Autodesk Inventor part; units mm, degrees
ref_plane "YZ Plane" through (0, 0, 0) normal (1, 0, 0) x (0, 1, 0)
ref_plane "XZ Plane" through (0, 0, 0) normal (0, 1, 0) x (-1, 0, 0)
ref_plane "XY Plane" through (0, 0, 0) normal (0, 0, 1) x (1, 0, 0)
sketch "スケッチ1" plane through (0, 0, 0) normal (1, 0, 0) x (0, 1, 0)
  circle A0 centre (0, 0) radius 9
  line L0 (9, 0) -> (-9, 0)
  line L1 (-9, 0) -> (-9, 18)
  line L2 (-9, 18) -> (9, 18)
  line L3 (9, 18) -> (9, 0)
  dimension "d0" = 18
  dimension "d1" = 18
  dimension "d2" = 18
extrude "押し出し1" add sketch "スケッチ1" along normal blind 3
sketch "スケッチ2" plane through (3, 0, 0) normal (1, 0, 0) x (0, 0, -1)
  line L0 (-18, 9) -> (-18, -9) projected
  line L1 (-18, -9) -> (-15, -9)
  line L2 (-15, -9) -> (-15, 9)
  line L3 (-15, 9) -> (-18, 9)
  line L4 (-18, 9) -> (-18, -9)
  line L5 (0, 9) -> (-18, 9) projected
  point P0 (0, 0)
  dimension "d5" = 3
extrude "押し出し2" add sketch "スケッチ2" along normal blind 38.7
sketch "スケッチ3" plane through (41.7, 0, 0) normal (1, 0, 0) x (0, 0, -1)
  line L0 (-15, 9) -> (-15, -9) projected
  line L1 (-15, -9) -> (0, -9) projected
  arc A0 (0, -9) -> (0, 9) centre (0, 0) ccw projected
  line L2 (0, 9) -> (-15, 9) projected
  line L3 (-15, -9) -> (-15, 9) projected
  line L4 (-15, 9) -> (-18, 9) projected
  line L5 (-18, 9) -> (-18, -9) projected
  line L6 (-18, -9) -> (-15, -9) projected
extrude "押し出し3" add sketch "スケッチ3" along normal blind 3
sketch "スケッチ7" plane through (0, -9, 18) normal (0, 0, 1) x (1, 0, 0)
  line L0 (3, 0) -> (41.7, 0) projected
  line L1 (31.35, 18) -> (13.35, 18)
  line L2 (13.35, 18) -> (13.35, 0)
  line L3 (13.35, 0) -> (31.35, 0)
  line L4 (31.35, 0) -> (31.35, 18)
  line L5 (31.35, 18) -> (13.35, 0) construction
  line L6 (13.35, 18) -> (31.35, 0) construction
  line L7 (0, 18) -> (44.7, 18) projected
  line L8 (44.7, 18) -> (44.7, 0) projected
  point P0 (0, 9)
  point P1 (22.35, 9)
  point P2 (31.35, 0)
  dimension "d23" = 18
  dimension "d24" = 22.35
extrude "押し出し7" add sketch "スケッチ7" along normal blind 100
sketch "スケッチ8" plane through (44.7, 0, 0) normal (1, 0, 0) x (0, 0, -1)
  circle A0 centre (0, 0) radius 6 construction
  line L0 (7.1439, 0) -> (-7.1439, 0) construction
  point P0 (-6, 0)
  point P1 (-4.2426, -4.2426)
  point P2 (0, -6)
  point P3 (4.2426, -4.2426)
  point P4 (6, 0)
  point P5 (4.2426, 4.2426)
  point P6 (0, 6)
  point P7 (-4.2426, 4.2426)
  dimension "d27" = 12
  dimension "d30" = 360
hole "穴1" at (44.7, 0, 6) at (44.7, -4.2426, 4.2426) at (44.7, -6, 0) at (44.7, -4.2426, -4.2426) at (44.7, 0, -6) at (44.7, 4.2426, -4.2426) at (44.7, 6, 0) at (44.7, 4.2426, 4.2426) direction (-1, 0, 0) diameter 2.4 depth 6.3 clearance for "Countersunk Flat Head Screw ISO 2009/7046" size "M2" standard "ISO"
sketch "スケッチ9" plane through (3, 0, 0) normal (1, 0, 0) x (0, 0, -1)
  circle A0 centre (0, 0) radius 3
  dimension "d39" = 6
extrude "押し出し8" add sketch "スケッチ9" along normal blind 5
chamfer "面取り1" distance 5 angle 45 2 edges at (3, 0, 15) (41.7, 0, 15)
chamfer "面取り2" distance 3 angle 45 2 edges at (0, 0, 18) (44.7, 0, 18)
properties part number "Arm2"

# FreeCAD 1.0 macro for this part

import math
import FreeCAD as App
import Part
import Sketcher
from FreeCAD import Vector
Q = App.Units.Quantity


def edges_at(feature, points):
    """Names of the edges that pass closest to the given points."""
    edges = feature.Shape.Edges
    near = lambda p: min(range(len(edges)), key=lambda i: edges[i].distToShape(Part.Vertex(*p))[0])
    return sorted({f"Edge{near(p) + 1}" for p in points})

doc = App.newDocument("Part")
body = doc.addObject("PartDesign::Body", "Body")

sketch1 = doc.addObject("Sketcher::SketchObject", "Sketch")
body.addObject(sketch1)
sketch1.AttachmentSupport = (doc.YZ_Plane, [""])
sketch1.MapMode = "FlatFace"
sketch1.addGeometry([
    Part.ArcOfCircle(Part.Circle(Vector(0, 0, 0), Vector(0, 0, 1), 9), math.radians(180), math.radians(360)),
    Part.LineSegment(Vector(9, 0, 0), Vector(9, 18, 0)),
    Part.LineSegment(Vector(9, 18, 0), Vector(-9, 18, 0)),
    Part.LineSegment(Vector(-9, 18, 0), Vector(-9, 0, 0)),
], False)
sketch1.addConstraint([
    Sketcher.Constraint("Tangent", 0, 2, 1, 1),
    Sketcher.Constraint("Coincident", 1, 2, 2, 1),
    Sketcher.Constraint("Coincident", 2, 2, 3, 1),
    Sketcher.Constraint("Tangent", 3, 2, 0, 1),
    Sketcher.Constraint("Vertical", 1),
    Sketcher.Constraint("Horizontal", 2),
    Sketcher.Constraint("Vertical", 3),
    Sketcher.Constraint("Coincident", 0, 3, -1, 1),
    Sketcher.Constraint("Equal", 2, 1),
    Sketcher.Constraint("Radius", 0, Q("9 mm")),
])
pad1 = doc.addObject("PartDesign::Pad", "Pad")
body.addObject(pad1)
pad1.Profile = sketch1
pad1.Length = 3

sketch2 = doc.addObject("Sketcher::SketchObject", "Sketch001")
body.addObject(sketch2)
sketch2.AttachmentSupport = (doc.YZ_Plane, [""])
sketch2.MapMode = "FlatFace"
sketch2.AttachmentOffset = App.Placement(Vector(0, 0, 3), App.Rotation())
sketch2.addGeometry([
    Part.LineSegment(Vector(9, 15, 0), Vector(9, 18, 0)),
    Part.LineSegment(Vector(9, 18, 0), Vector(-9, 18, 0)),
    Part.LineSegment(Vector(-9, 18, 0), Vector(-9, 15, 0)),
    Part.LineSegment(Vector(-9, 15, 0), Vector(9, 15, 0)),
], False)
sketch2.addConstraint([
    Sketcher.Constraint("Coincident", 0, 2, 1, 1),
    Sketcher.Constraint("Coincident", 1, 2, 2, 1),
    Sketcher.Constraint("Coincident", 2, 2, 3, 1),
    Sketcher.Constraint("Coincident", 3, 2, 0, 1),
    Sketcher.Constraint("Vertical", 0),
    Sketcher.Constraint("Horizontal", 1),
    Sketcher.Constraint("Vertical", 2),
    Sketcher.Constraint("Horizontal", 3),
    Sketcher.Constraint("DistanceY", 0, 1, 0, 2, Q("3 mm")),
    Sketcher.Constraint("DistanceX", 1, 2, 1, 1, Q("18 mm")),
    Sketcher.Constraint("DistanceX", -1, 1, 0, 2, Q("9 mm")),
    Sketcher.Constraint("DistanceY", -1, 1, 0, 2, Q("18 mm")),
])
pad2 = doc.addObject("PartDesign::Pad", "Pad001")
body.addObject(pad2)
pad2.Profile = sketch2
pad2.Length = 38.7

sketch3 = doc.addObject("Sketcher::SketchObject", "Sketch002")
body.addObject(sketch3)
sketch3.AttachmentSupport = (doc.YZ_Plane, [""])
sketch3.MapMode = "FlatFace"
sketch3.AttachmentOffset = App.Placement(Vector(0, 0, 41.7), App.Rotation())
sketch3.addGeometry([
    Part.LineSegment(Vector(9, 0, 0), Vector(9, 18, 0)),
    Part.LineSegment(Vector(9, 18, 0), Vector(-9, 18, 0)),
    Part.LineSegment(Vector(-9, 18, 0), Vector(-9, 0, 0)),
    Part.ArcOfCircle(Part.Circle(Vector(0, 0, 0), Vector(0, 0, 1), 9), math.radians(180), math.radians(360)),
], False)
sketch3.addConstraint([
    Sketcher.Constraint("Coincident", 0, 2, 1, 1),
    Sketcher.Constraint("Coincident", 1, 2, 2, 1),
    Sketcher.Constraint("Tangent", 2, 2, 3, 1),
    Sketcher.Constraint("Tangent", 3, 2, 0, 1),
    Sketcher.Constraint("Vertical", 0),
    Sketcher.Constraint("Horizontal", 1),
    Sketcher.Constraint("Vertical", 2),
    Sketcher.Constraint("Coincident", 3, 3, -1, 1),
    Sketcher.Constraint("Equal", 1, 0),
    Sketcher.Constraint("Radius", 3, Q("9 mm")),
])
pad3 = doc.addObject("PartDesign::Pad", "Pad002")
body.addObject(pad3)
pad3.Profile = sketch3
pad3.Length = 3

sketch4 = doc.addObject("Sketcher::SketchObject", "Sketch003")
body.addObject(sketch4)
sketch4.AttachmentSupport = (doc.XY_Plane, [""])
sketch4.MapMode = "FlatFace"
sketch4.AttachmentOffset = App.Placement(Vector(0, 0, 18), App.Rotation())
sketch4.addGeometry([
    Part.LineSegment(Vector(13.35, 9, 0), Vector(13.35, -9, 0)),
    Part.LineSegment(Vector(13.35, -9, 0), Vector(31.35, -9, 0)),
    Part.LineSegment(Vector(31.35, -9, 0), Vector(31.35, 9, 0)),
    Part.LineSegment(Vector(31.35, 9, 0), Vector(13.35, 9, 0)),
], False)
sketch4.addConstraint([
    Sketcher.Constraint("Coincident", 0, 2, 1, 1),
    Sketcher.Constraint("Coincident", 1, 2, 2, 1),
    Sketcher.Constraint("Coincident", 2, 2, 3, 1),
    Sketcher.Constraint("Coincident", 3, 2, 0, 1),
    Sketcher.Constraint("Vertical", 0),
    Sketcher.Constraint("Horizontal", 1),
    Sketcher.Constraint("Vertical", 2),
    Sketcher.Constraint("Horizontal", 3),
    Sketcher.Constraint("Equal", 3, 0),
    Sketcher.Constraint("DistanceX", 1, 1, 1, 2, Q("18 mm")),
    Sketcher.Constraint("DistanceY", 0, 2, -1, 1, Q("9 mm")),
    Sketcher.Constraint("DistanceX", -1, 1, 0, 2, Q("13.35 mm")),
])
pad4 = doc.addObject("PartDesign::Pad", "Pad003")
body.addObject(pad4)
pad4.Profile = sketch4
pad4.Length = 100

sketch5 = doc.addObject("Sketcher::SketchObject", "Sketch004")
body.addObject(sketch5)
sketch5.AttachmentSupport = (doc.YZ_Plane, [""])
sketch5.MapMode = "FlatFace"
sketch5.AttachmentOffset = App.Placement(Vector(0, 0, 44.7), App.Rotation())
sketch5.addGeometry([
    Part.Circle(Vector(0, 6, 0), Vector(0, 0, 1), 1.2),
    Part.Circle(Vector(-4.2426, 4.2426, 0), Vector(0, 0, 1), 1.2),
    Part.Circle(Vector(-6, 0, 0), Vector(0, 0, 1), 1.2),
    Part.Circle(Vector(-4.2426, -4.2426, 0), Vector(0, 0, 1), 1.2),
    Part.Circle(Vector(0, -6, 0), Vector(0, 0, 1), 1.2),
    Part.Circle(Vector(4.2426, -4.2426, 0), Vector(0, 0, 1), 1.2),
    Part.Circle(Vector(6, 0, 0), Vector(0, 0, 1), 1.2),
    Part.Circle(Vector(4.2426, 4.2426, 0), Vector(0, 0, 1), 1.2),
], False)
sketch5.addConstraint([
    Sketcher.Constraint("Equal", 0, 1),
    Sketcher.Constraint("Equal", 1, 2),
    Sketcher.Constraint("Equal", 2, 3),
    Sketcher.Constraint("Equal", 3, 4),
    Sketcher.Constraint("Equal", 4, 5),
    Sketcher.Constraint("Equal", 5, 6),
    Sketcher.Constraint("Equal", 6, 7),
    Sketcher.Constraint("Symmetric", 0, 3, 4, 3, -1, 1),
    Sketcher.Constraint("Symmetric", 1, 3, 5, 3, -1, 1),
    Sketcher.Constraint("Symmetric", 2, 3, 6, 3, -1, 1),
    Sketcher.Constraint("Symmetric", 3, 3, 7, 3, -1, 1),
    Sketcher.Constraint("Symmetric", 3, 3, 5, 3, -2),
    Sketcher.Constraint("PointOnObject", 0, 3, -2),
    Sketcher.Constraint("PointOnObject", 2, 3, -1),
    Sketcher.Constraint("Diameter", 0, Q("2.4 mm")),
    Sketcher.Constraint("DistanceY", -1, 1, 0, 3, Q("6 mm")),
    Sketcher.Constraint("DistanceX", 2, 3, -1, 1, Q("6 mm")),
    Sketcher.Constraint("DistanceX", 1, 3, -1, 1, Q("4.2426 mm")),
    Sketcher.Constraint("DistanceY", -1, 1, 1, 3, Q("4.2426 mm")),
])
doc.recompute()
hole = doc.addObject("PartDesign::Hole", "Hole")
body.addObject(hole)
hole.Profile = sketch5
hole.ThreadType = "None"
hole.Diameter = 2.4
hole.DepthType = "Dimension"
hole.Depth = 6.3
hole.DrillPoint = "Flat"

sketch6 = doc.addObject("Sketcher::SketchObject", "Sketch005")
body.addObject(sketch6)
sketch6.AttachmentSupport = (doc.YZ_Plane, [""])
sketch6.MapMode = "FlatFace"
sketch6.AttachmentOffset = App.Placement(Vector(0, 0, 3), App.Rotation())
sketch6.addGeometry(Part.Circle(Vector(0, 0, 0), Vector(0, 0, 1), 3), False)
sketch6.addConstraint([
    Sketcher.Constraint("Coincident", 0, 3, -1, 1),
    Sketcher.Constraint("Diameter", 0, Q("6 mm")),
])
pad5 = doc.addObject("PartDesign::Pad", "Pad004")
body.addObject(pad5)
pad5.Profile = sketch6
pad5.Length = 5
doc.recompute()

chamfer = doc.addObject("PartDesign::Chamfer", "Chamfer")
body.addObject(chamfer)
chamfer.Base = (pad5, edges_at(pad5, [(3, 0, 15), (41.7, 0, 15)]))
chamfer.Size = 5
doc.recompute()

chamfer2 = doc.addObject("PartDesign::Chamfer", "Chamfer001")
body.addObject(chamfer2)
chamfer2.Base = (chamfer, edges_at(chamfer, [(0, 0, 18), (44.7, 0, 18)]))
chamfer2.Size = 3

doc.recompute()
